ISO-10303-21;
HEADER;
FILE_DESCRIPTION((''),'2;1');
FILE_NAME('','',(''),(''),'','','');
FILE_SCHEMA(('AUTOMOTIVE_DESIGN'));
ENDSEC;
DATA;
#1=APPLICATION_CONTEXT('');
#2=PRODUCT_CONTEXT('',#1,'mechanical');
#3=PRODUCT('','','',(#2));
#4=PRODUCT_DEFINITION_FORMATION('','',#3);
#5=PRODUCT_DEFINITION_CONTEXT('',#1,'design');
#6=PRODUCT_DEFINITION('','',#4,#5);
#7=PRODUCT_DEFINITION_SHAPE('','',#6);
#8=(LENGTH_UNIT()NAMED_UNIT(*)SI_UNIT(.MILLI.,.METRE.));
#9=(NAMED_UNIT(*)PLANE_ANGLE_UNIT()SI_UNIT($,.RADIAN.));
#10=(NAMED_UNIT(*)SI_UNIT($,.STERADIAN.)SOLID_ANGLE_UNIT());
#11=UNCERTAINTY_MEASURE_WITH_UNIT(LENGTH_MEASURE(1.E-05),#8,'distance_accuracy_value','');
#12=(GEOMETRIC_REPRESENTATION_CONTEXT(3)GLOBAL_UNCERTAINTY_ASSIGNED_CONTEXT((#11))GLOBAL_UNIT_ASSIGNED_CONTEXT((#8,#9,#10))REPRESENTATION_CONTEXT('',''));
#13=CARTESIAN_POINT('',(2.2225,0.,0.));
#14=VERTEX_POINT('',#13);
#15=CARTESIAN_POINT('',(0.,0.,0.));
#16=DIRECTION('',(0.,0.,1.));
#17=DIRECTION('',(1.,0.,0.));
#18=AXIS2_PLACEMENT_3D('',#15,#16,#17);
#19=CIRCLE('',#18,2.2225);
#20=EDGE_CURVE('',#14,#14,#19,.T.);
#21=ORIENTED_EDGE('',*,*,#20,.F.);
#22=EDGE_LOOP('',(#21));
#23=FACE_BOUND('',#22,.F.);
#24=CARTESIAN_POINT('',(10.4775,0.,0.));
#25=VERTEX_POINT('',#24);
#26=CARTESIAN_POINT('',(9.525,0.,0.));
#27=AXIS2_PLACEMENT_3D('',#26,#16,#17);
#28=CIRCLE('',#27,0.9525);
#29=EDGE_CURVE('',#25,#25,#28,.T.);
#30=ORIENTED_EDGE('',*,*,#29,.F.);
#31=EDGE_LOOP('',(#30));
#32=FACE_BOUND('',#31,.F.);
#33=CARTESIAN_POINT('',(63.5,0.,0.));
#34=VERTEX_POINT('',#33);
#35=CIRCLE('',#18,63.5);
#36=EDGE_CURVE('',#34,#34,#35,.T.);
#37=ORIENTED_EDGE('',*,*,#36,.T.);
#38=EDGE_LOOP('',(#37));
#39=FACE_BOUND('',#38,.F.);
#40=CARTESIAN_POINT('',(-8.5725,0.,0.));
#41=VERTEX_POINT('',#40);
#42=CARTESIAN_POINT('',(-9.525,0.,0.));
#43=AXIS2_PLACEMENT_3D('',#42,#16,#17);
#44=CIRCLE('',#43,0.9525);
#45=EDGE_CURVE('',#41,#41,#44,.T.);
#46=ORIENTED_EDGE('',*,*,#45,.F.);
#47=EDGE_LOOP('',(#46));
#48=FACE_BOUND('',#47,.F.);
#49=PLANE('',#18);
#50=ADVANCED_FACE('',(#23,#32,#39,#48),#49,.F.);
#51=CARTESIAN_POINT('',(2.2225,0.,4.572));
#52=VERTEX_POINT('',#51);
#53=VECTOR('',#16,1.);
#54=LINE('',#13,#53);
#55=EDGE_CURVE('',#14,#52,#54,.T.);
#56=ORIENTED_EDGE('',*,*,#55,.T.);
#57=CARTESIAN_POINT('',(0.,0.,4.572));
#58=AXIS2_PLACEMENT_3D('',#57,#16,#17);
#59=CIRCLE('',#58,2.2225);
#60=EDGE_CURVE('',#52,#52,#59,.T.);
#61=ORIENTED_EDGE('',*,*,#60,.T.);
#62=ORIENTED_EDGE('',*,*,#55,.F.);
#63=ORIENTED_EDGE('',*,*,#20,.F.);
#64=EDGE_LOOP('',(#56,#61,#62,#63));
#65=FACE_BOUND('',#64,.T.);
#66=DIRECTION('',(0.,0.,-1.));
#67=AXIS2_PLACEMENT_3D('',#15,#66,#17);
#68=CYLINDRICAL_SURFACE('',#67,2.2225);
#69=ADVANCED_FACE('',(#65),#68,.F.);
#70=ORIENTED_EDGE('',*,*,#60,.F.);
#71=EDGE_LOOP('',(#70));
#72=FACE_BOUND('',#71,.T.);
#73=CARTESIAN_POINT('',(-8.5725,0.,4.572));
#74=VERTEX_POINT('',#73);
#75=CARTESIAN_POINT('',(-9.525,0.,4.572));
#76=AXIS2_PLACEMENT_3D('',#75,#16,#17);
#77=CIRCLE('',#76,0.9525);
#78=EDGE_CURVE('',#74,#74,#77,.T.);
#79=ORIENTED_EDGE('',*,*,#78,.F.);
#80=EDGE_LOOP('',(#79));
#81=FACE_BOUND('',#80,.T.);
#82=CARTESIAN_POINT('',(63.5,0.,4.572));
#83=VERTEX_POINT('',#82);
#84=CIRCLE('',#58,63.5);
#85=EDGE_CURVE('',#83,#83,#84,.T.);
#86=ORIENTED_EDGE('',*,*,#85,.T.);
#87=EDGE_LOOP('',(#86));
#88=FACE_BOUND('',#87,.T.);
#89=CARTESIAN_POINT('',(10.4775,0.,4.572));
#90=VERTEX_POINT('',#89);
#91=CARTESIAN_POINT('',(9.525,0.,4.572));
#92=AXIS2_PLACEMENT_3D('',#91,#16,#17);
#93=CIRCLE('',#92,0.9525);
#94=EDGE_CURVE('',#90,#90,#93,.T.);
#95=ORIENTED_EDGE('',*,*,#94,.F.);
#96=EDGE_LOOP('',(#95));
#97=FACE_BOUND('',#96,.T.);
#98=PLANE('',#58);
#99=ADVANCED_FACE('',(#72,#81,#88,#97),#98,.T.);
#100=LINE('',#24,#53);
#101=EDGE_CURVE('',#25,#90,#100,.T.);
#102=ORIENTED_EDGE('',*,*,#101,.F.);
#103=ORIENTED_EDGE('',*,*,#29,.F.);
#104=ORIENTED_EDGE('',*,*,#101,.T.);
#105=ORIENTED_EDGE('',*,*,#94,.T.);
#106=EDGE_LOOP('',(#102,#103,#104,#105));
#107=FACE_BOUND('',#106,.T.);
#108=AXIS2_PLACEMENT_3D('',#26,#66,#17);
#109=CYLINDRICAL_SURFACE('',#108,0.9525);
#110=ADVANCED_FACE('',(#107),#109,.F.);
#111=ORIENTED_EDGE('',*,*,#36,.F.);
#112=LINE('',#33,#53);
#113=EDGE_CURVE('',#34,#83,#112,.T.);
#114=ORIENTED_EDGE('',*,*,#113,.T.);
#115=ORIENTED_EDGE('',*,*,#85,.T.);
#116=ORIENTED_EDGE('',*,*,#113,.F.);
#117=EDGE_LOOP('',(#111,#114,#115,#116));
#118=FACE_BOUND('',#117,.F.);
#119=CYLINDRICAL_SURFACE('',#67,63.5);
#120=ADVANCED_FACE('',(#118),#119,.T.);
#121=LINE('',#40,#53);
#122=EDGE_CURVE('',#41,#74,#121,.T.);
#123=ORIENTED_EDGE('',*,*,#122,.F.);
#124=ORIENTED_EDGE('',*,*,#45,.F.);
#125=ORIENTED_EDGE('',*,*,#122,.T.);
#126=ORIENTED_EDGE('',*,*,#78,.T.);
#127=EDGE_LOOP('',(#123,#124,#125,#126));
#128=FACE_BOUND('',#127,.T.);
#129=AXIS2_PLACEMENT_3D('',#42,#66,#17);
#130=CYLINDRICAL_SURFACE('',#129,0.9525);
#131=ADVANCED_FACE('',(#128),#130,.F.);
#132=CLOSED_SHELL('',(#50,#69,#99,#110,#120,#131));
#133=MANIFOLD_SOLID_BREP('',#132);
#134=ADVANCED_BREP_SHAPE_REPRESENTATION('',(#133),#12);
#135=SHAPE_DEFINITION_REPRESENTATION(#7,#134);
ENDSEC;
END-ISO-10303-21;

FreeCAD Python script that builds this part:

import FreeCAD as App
import Part
import Sketcher

V = App.Vector
Q = App.Units.Quantity

doc = App.newDocument("Part")
body = doc.addObject("PartDesign::Body", "Body")

# Sketch on XY plane
sketch1 = body.newObject("Sketcher::SketchObject", "Sketch")
sketch1.AttachmentSupport = (doc.getObject("XY_Plane"), [""])
sketch1.MapMode = "FlatFace"
sketch1.addGeometry(Part.Circle(V(0, 0, 0), V(0, 0, 1), 63.5), False)
sketch1.addGeometry(Part.Circle(V(-9.525, 0, 0), V(0, 0, 1), 0.9525), False)
sketch1.addGeometry(Part.Circle(V(0, 0, 0), V(0, 0, 1), 2.2225), False)
sketch1.addGeometry(Part.Circle(V(9.525, 0, 0), V(0, 0, 1), 0.9525), False)
sketch1.addConstraint(Sketcher.Constraint("Coincident", 0, 3, -1, 1))
sketch1.addConstraint(Sketcher.Constraint("Coincident", 2, 3, -1, 1))
sketch1.addConstraint(Sketcher.Constraint("Equal", 1, 3))
sketch1.addConstraint(Sketcher.Constraint("Symmetric", 1, 3, 3, 3, -1, 1))
sketch1.addConstraint(Sketcher.Constraint("PointOnObject", 1, 3, -1))
sketch1.addConstraint(Sketcher.Constraint("Diameter", 0, Q("5 in")))
sketch1.addConstraint(Sketcher.Constraint("Diameter", 1, Q("0.075 in")))
sketch1.addConstraint(Sketcher.Constraint("Diameter", 2, Q("0.175 in")))
sketch1.addConstraint(Sketcher.Constraint("DistanceX", 1, 3, -1, 1, Q("0.375 in")))
pad1 = body.newObject("PartDesign::Pad", "Pad")
pad1.Profile = sketch1
pad1.Length = Q("0.18 in")

doc.recompute()
